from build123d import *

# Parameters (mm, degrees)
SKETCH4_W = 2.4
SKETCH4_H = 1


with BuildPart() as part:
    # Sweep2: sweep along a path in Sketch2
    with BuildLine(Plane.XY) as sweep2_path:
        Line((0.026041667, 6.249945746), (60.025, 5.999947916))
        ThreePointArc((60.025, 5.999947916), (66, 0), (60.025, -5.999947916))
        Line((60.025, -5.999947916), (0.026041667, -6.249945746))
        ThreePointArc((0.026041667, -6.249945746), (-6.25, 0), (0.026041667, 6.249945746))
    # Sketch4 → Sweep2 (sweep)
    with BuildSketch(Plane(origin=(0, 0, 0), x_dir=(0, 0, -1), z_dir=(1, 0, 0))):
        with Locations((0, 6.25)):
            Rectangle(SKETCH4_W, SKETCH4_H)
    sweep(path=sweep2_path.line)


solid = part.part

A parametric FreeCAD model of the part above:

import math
import FreeCAD as App
import Part
import Sketcher
from FreeCAD import Vector


def add_polygon(sketch, points):
    """Adds a closed chain of lines whose ends are joined by coincident constraints."""
    first, n = sketch.GeometryCount, len(points)
    for a, b in zip(points, points[1:] + points[:1]):
        sketch.addGeometry(Part.LineSegment(App.Vector(*a, 0), App.Vector(*b, 0)), False)
    for i in range(n):
        sketch.addConstraint(Sketcher.Constraint("Coincident", first + i, 2, first + (i + 1) % n, 1))

doc = App.newDocument("Part")
body = doc.addObject("PartDesign::Body", "Body")

# Sketch on YZ plane
sketch1 = body.newObject("Sketcher::SketchObject", "Sketch")
sketch1.AttachmentSupport = (doc.getObject("YZ_Plane"), [""])
sketch1.MapMode = "FlatFace"
add_polygon(sketch1, [(6.8, 1.2), (5.8, 1.2), (5.8, -1.2), (6.8, -1.2)])  # lines 0-3
sketch1.addConstraint([
    Sketcher.Constraint("Horizontal", 0),
    Sketcher.Constraint("Vertical", 1),
    Sketcher.Constraint("Horizontal", 2),
    Sketcher.Constraint("Vertical", 3),
    Sketcher.Constraint("DistanceX", 0, 2, 0, 1, 1.0),
    Sketcher.Constraint("DistanceY", 1, 2, 1, 1, 2.4),
    Sketcher.Constraint("DistanceY", -1, 1, 0, 2, 1.2),
    Sketcher.Constraint("DistanceX", -1, 1, 0, 2, 5.75),
])

# Sketch on XY plane
sketch2 = body.newObject("Sketcher::SketchObject", "Sketch001")
sketch2.AttachmentSupport = (doc.getObject("XY_Plane"), [""])
sketch2.MapMode = "FlatFace"
sketch2.addGeometry([
    Part.LineSegment(Vector(0, 6, 0), Vector(60, 6, 0)),
    Part.ArcOfCircle(Part.Circle(Vector(60, 0, 0), Vector(0, 0, 1), 6), math.radians(-90), math.radians(90)),
    Part.LineSegment(Vector(60, -6, 0), Vector(0, -6, 0)),
    Part.ArcOfCircle(Part.Circle(Vector(0, 0, 0), Vector(0, 0, 1), 6), math.radians(90), math.radians(270)),
], False)
sketch2.addConstraint([
    Sketcher.Constraint("Tangent", 0, 2, 1, 2),
    Sketcher.Constraint("Tangent", 1, 1, 2, 1),
    Sketcher.Constraint("Tangent", 2, 2, 3, 2),
    Sketcher.Constraint("Tangent", 3, 1, 0, 1),
    Sketcher.Constraint("Coincident", 3, 3, -1, 1),
    Sketcher.Constraint("PointOnObject", 1, 3, -1),
    Sketcher.Constraint("Radius", 1, 6.0),
    Sketcher.Constraint("Radius", 3, 6.25),
    Sketcher.Constraint("DistanceX", -1, 1, 1, 3, 60.0),
])
doc.recompute()

additivepipe = body.newObject("PartDesign::AdditivePipe", "AdditivePipe")
additivepipe.Profile = sketch1
additivepipe.Spine = (sketch2, ["Edge1", "Edge2", "Edge3", "Edge4"])

doc.recompute()
